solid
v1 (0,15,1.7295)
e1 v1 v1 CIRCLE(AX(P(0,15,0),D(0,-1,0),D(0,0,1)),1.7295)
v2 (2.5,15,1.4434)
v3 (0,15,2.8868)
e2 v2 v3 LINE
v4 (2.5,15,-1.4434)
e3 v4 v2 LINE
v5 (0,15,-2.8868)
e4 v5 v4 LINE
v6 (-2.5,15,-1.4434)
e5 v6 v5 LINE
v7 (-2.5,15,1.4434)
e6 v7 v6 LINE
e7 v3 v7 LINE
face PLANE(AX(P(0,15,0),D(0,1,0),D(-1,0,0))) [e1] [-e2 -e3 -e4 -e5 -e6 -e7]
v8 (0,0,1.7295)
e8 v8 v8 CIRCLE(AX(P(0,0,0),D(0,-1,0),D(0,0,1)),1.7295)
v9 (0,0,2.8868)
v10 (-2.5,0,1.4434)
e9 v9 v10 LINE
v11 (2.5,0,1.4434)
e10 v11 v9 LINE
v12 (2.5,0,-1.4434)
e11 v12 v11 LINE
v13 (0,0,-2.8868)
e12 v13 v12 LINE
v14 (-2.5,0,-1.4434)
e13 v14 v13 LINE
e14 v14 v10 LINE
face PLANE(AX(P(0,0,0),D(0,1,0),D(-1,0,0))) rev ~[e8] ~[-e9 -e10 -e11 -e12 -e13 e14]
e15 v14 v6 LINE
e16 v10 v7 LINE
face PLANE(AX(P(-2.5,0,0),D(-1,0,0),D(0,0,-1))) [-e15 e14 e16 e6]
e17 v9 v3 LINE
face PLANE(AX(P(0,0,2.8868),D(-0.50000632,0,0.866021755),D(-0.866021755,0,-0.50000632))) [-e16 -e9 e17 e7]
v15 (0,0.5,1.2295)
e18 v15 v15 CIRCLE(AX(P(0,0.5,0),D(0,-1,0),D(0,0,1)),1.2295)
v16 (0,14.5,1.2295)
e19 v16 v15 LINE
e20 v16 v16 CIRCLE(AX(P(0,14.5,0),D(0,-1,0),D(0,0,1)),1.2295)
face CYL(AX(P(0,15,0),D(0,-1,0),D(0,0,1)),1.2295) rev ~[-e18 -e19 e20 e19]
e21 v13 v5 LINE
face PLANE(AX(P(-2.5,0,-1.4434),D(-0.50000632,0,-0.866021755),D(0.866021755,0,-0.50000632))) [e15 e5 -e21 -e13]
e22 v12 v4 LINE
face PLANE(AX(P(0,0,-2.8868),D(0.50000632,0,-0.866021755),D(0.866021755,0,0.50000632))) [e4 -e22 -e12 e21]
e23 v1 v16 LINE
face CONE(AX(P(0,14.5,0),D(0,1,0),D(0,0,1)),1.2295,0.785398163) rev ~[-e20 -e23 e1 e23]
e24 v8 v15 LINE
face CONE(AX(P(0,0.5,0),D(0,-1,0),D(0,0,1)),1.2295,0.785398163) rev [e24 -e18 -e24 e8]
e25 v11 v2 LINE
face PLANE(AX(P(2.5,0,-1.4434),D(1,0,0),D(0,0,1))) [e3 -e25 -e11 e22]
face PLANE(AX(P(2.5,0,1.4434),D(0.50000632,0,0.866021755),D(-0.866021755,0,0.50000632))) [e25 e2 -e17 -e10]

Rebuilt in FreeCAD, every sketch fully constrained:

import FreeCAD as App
import Part
import Sketcher

V = App.Vector
Q = App.Units.Quantity


def edges_at(feature, points):
    """Names of the edges that pass closest to the given points."""
    edges = feature.Shape.Edges
    near = lambda p: min(range(len(edges)), key=lambda i: edges[i].distToShape(Part.Vertex(*p))[0])
    return sorted({f"Edge{near(p) + 1}" for p in points})

doc = App.newDocument("Part")
body = doc.addObject("PartDesign::Body", "Body")

# Sketch on XZ plane
sketch1 = doc.addObject("Sketcher::SketchObject", "Sketch")
body.addObject(sketch1)
sketch1.AttachmentSupport = (doc.XZ_Plane, [""])
sketch1.MapMode = "FlatFace"
sketch1.addGeometry(Part.LineSegment(V(0, -2.8868, 0), V(-2.5, -1.4434, 0)), False)
sketch1.addGeometry(Part.LineSegment(V(-2.5, -1.4434, 0), V(-2.5, 1.4434, 0)), False)
sketch1.addGeometry(Part.LineSegment(V(-2.5, 1.4434, 0), V(0, 2.8868, 0)), False)
sketch1.addGeometry(Part.LineSegment(V(0, 2.8868, 0), V(2.5, 1.4434, 0)), False)
sketch1.addGeometry(Part.LineSegment(V(2.5, 1.4434, 0), V(2.5, -1.4434, 0)), False)
sketch1.addGeometry(Part.LineSegment(V(2.5, -1.4434, 0), V(0, -2.8868, 0)), False)
sketch1.addConstraint(Sketcher.Constraint("Coincident", 0, 2, 1, 1))
sketch1.addConstraint(Sketcher.Constraint("Coincident", 1, 2, 2, 1))
sketch1.addConstraint(Sketcher.Constraint("Coincident", 2, 2, 3, 1))
sketch1.addConstraint(Sketcher.Constraint("Coincident", 3, 2, 4, 1))
sketch1.addConstraint(Sketcher.Constraint("Coincident", 4, 2, 5, 1))
sketch1.addConstraint(Sketcher.Constraint("Coincident", 5, 2, 0, 1))
sketch1.addConstraint(Sketcher.Constraint("Vertical", 1))
sketch1.addConstraint(Sketcher.Constraint("Vertical", 4))
sketch1.addConstraint(Sketcher.Constraint("Symmetric", 0, 2, 3, 2, -1, 1))
sketch1.addConstraint(Sketcher.Constraint("Symmetric", 2, 2, 5, 2, -1, 1))
sketch1.addConstraint(Sketcher.Constraint("PointOnObject", 2, 2, -2))
sketch1.addConstraint(Sketcher.Constraint("Parallel", 2, 5))
sketch1.addConstraint(Sketcher.Constraint("Horizontal", 1, 2, 3, 2))
sketch1.addConstraint(Sketcher.Constraint("DistanceX", 0, 2, -1, 1, 2.5))
sketch1.addConstraint(Sketcher.Constraint("Angle", 0, Q("149.9996 deg")))
sketch1.addConstraint(Sketcher.Constraint("DistanceY", 1, 1, 1, 2, 2.8868))
pad1 = doc.addObject("PartDesign::Pad", "Pad")
body.addObject(pad1)
pad1.Profile = sketch1
pad1.Length = 15
pad1.Reversed = True

# Sketch on XZ plane
sketch2 = doc.addObject("Sketcher::SketchObject", "Sketch001")
body.addObject(sketch2)
sketch2.AttachmentSupport = (doc.XZ_Plane, [""])
sketch2.MapMode = "FlatFace"
sketch2.AttachmentOffset = App.Placement(V(0, 0, -15), App.Rotation())
sketch2.addGeometry(Part.Circle(V(0, 0, 0), V(0, 0, 1), 1.2295), False)
sketch2.addConstraint(Sketcher.Constraint("Coincident", 0, 3, -1, 1))
sketch2.addConstraint(Sketcher.Constraint("Diameter", 0, 2.459))
doc.recompute()
hole = doc.addObject("PartDesign::Hole", "Hole")
body.addObject(hole)
hole.Profile = sketch2
hole.ThreadType = "None"
hole.Diameter = 2.459
hole.DepthType = "ThroughAll"
hole.Reversed = True
doc.recompute()

chamfer = doc.addObject("PartDesign::Chamfer", "Chamfer")
body.addObject(chamfer)
chamfer.Base = (hole, edges_at(hole, [(0, 15, -1.23), (0, 0, -1.23)]))
chamfer.Size = 0.5

doc.recompute()
